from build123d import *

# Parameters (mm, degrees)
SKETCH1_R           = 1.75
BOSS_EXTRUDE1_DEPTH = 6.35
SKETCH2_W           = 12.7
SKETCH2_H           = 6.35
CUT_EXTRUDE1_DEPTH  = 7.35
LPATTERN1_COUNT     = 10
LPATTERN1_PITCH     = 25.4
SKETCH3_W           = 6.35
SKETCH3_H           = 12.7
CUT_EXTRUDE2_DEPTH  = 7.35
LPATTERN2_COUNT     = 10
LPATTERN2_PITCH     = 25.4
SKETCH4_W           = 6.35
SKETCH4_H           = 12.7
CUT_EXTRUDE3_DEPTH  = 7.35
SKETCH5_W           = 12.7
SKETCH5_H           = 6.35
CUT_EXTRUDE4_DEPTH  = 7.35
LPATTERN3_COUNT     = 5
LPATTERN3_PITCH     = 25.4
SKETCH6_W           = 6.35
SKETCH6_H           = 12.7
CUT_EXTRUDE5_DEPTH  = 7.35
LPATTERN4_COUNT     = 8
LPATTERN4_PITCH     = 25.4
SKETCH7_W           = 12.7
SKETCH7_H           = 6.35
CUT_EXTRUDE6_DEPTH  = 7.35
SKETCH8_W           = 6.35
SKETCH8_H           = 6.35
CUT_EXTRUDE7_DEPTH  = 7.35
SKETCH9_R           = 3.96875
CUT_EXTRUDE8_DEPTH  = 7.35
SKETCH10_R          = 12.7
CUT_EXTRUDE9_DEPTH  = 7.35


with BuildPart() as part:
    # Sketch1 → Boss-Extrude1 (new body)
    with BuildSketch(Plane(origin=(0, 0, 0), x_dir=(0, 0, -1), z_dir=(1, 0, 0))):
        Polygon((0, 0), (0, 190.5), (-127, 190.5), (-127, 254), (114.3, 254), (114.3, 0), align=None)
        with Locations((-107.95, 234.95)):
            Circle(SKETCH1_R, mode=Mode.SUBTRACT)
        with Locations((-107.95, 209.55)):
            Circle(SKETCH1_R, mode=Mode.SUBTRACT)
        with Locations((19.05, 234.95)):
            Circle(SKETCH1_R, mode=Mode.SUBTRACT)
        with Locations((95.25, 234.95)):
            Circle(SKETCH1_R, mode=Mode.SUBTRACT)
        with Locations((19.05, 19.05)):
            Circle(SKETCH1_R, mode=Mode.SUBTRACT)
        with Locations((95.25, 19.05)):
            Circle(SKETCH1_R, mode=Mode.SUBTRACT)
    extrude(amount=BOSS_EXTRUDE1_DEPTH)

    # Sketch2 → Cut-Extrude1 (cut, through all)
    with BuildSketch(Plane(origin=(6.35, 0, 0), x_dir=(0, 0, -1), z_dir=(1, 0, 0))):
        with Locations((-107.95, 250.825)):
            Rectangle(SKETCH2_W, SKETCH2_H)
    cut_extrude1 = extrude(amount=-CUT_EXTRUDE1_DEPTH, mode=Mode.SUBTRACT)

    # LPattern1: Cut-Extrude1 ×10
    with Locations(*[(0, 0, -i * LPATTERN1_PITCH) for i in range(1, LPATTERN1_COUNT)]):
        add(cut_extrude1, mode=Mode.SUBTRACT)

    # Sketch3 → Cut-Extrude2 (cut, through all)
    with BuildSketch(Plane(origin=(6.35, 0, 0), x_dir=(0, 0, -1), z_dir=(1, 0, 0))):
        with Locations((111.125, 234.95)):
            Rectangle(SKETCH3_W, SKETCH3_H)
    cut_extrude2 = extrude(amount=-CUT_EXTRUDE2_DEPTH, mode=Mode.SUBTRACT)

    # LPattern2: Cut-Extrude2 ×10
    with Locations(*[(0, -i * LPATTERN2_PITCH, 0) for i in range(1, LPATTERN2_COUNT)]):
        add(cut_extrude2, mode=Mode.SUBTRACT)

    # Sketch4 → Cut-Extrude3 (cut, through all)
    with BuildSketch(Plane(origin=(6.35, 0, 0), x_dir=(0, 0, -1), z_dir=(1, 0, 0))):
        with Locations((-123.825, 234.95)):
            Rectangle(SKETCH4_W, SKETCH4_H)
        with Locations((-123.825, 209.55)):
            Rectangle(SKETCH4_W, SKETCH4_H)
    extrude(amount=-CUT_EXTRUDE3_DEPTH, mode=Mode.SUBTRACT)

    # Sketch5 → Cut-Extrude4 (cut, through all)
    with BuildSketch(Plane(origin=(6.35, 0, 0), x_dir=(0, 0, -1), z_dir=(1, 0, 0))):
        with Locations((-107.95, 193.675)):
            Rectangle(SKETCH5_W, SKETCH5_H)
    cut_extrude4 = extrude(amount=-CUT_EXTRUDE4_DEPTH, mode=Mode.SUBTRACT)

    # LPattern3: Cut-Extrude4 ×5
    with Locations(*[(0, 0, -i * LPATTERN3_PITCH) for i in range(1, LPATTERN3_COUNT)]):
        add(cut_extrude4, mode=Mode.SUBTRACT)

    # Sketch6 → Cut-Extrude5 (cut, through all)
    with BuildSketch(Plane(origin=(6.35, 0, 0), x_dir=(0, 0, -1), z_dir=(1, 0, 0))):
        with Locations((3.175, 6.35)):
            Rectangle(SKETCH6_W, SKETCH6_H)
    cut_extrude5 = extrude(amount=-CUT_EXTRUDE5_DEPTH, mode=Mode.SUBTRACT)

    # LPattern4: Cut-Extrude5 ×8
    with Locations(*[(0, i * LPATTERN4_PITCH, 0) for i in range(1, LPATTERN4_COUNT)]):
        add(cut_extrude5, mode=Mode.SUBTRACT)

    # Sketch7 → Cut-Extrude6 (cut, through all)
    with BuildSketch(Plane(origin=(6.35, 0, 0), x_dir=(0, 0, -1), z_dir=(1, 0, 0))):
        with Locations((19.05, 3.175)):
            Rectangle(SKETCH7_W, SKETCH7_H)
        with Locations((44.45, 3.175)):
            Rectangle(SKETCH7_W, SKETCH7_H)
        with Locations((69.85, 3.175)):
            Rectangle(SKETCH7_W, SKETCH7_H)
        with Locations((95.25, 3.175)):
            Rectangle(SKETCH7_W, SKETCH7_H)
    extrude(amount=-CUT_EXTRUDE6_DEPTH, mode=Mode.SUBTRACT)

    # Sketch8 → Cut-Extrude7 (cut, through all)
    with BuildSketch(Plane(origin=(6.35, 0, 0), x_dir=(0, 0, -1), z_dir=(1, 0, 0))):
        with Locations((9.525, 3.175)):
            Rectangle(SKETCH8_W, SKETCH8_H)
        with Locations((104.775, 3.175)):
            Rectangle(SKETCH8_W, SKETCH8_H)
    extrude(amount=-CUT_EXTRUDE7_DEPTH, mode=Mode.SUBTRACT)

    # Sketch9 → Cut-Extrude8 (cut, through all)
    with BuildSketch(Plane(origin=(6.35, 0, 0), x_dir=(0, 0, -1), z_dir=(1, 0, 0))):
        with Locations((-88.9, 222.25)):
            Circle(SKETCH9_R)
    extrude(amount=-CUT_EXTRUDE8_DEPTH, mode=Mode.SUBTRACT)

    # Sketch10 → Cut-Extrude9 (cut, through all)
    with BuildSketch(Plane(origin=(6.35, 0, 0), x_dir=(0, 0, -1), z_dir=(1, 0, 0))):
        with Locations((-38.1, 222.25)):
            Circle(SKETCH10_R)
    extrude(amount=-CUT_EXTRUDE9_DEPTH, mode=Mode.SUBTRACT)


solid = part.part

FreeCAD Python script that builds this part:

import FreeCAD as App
import Part
import Sketcher
from FreeCAD import Vector
Q = App.Units.Quantity

doc = App.newDocument("Part")
body = doc.addObject("PartDesign::Body", "Body")

# Sketch on YZ plane
sketch1 = body.newObject("Sketcher::SketchObject", "Sketch")
sketch1.AttachmentSupport = (doc.getObject("YZ_Plane"), [""])
sketch1.MapMode = "FlatFace"
sketch1.addGeometry([
    Part.LineSegment(Vector(190.5, 0, 0), Vector(0, 0, 0)),  # 0
    Part.LineSegment(Vector(0, 0, 0), Vector(0, -114.3, 0)),  # 1
    Part.LineSegment(Vector(0, -114.3, 0), Vector(254, -114.3, 0)),  # 2
    Part.LineSegment(Vector(254, -114.3, 0), Vector(254, 127, 0)),  # 3
    Part.LineSegment(Vector(254, 127, 0), Vector(190.5, 127, 0)),  # 4
    Part.LineSegment(Vector(190.5, 127, 0), Vector(190.5, 0, 0)),  # 5
    Part.Circle(Vector(19.1, -95.2, 0), Vector(0, 0, 1), 1.8),  # 6
    Part.Circle(Vector(19.1, -19.1, 0), Vector(0, 0, 1), 1.8),  # 7
    Part.Circle(Vector(234.9, -95.2, 0), Vector(0, 0, 1), 1.8),  # 8
    Part.Circle(Vector(234.9, -19.1, 0), Vector(0, 0, 1), 1.8),  # 9
    Part.Circle(Vector(209.6, 108, 0), Vector(0, 0, 1), 1.8),  # 10
    Part.Circle(Vector(234.9, 108, 0), Vector(0, 0, 1), 1.8),  # 11
], False)
sketch1.addConstraint([
    Sketcher.Constraint("Coincident", 0, 2, 1, 1),
    Sketcher.Constraint("Coincident", 1, 2, 2, 1),
    Sketcher.Constraint("Coincident", 2, 2, 3, 1),
    Sketcher.Constraint("Coincident", 3, 2, 4, 1),
    Sketcher.Constraint("Coincident", 4, 2, 5, 1),
    Sketcher.Constraint("Coincident", 5, 2, 0, 1),
    Sketcher.Constraint("Horizontal", 0),
    Sketcher.Constraint("Vertical", 1),
    Sketcher.Constraint("Horizontal", 2),
    Sketcher.Constraint("Vertical", 3),
    Sketcher.Constraint("Horizontal", 4),
    Sketcher.Constraint("Vertical", 5),
    Sketcher.Constraint("Coincident", 0, 2, -1, 1),
    Sketcher.Constraint("Equal", 6, 7),
    Sketcher.Constraint("Equal", 7, 8),
    Sketcher.Constraint("Equal", 8, 9),
    Sketcher.Constraint("Equal", 9, 10),
    Sketcher.Constraint("Equal", 10, 11),
    Sketcher.Constraint("Horizontal", 6, 3, 8, 3),
    Sketcher.Constraint("Horizontal", 7, 3, 9, 3),
    Sketcher.Constraint("Horizontal", 10, 3, 11, 3),
    Sketcher.Constraint("Vertical", 6, 3, 7, 3),
    Sketcher.Constraint("Vertical", 8, 3, 9, 3),
    Sketcher.Constraint("Vertical", 9, 3, 11, 3),
    Sketcher.Constraint("DistanceX", 2, 1, 2, 2, Q("10 in")),
    Sketcher.Constraint("DistanceY", 5, 2, 5, 1, Q("5 in")),
    Sketcher.Constraint("DistanceX", 0, 2, 0, 1, Q("7.5 in")),
    Sketcher.Constraint("DistanceY", 1, 2, 1, 1, Q("4.5 in")),
    Sketcher.Constraint("DistanceY", 6, 3, 7, 3, Q("3 in")),
    Sketcher.Constraint("DistanceX", 10, 3, 9, 3, Q("1 in")),
    Sketcher.Constraint("DistanceY", 9, 3, 10, 3, Q("5 in")),
    Sketcher.Constraint("DistanceX", 6, 3, 8, 3, Q("8.5 in")),
    Sketcher.Constraint("Diameter", 6, Q("3.5 mm")),
    Sketcher.Constraint("DistanceX", -1, 1, 6, 3, Q("0.75 in")),
    Sketcher.Constraint("DistanceY", 6, 3, -1, 1, Q("3.75 in")),
])
pad1 = body.newObject("PartDesign::Pad", "Pad")
pad1.Profile = sketch1
pad1.Length = Q("0.25 in")

# Sketch on YZ plane
sketch2 = body.newObject("Sketcher::SketchObject", "Sketch001")
sketch2.AttachmentSupport = (doc.getObject("YZ_Plane"), [""])
sketch2.MapMode = "FlatFace"
sketch2.AttachmentOffset = App.Placement(Vector(0, 0, 0.25 * 25.4), App.Rotation())
sketch2.addGeometry([
    Part.LineSegment(Vector(254, 114, 0), Vector(248, 114, 0)),
    Part.LineSegment(Vector(248, 114, 0), Vector(248, 102, 0)),
    Part.LineSegment(Vector(248, 102, 0), Vector(254, 102, 0)),
    Part.LineSegment(Vector(254, 102, 0), Vector(254, 114, 0)),
], False)
sketch2.addConstraint([
    Sketcher.Constraint("Coincident", 0, 2, 1, 1),
    Sketcher.Constraint("Coincident", 1, 2, 2, 1),
    Sketcher.Constraint("Coincident", 2, 2, 3, 1),
    Sketcher.Constraint("Coincident", 3, 2, 0, 1),
    Sketcher.Constraint("Horizontal", 0),
    Sketcher.Constraint("Vertical", 1),
    Sketcher.Constraint("Horizontal", 2),
    Sketcher.Constraint("Vertical", 3),
    Sketcher.Constraint("DistanceY", 1, 2, 1, 1, Q("0.5 in")),
    Sketcher.Constraint("DistanceY", -1, 1, 1, 2, Q("4 in")),
    Sketcher.Constraint("DistanceX", -1, 1, 2, 2, Q("10 in")),
    Sketcher.Constraint("DistanceX", 0, 2, 0, 1, Q("0.25 in")),
])
pocket1 = body.newObject("PartDesign::Pocket", "Pocket")
pocket1.Profile = sketch2
pocket1.Type = "ThroughAll"
doc.recompute()

linearpattern = body.newObject("PartDesign::LinearPattern", "LinearPattern")
linearpattern.Originals = [pocket1]
linearpattern.Direction = (doc.getObject("Z_Axis"), [""])
linearpattern.Mode = "offset"
linearpattern.Offset = Q("1 in")
linearpattern.Occurrences = 10
linearpattern.Reversed = True
body.Tip = linearpattern

# Sketch on YZ plane
sketch3 = body.newObject("Sketcher::SketchObject", "Sketch002")
sketch3.AttachmentSupport = (doc.getObject("YZ_Plane"), [""])
sketch3.MapMode = "FlatFace"
sketch3.AttachmentOffset = App.Placement(Vector(0, 0, 0.25 * 25.4), App.Rotation())
sketch3.addGeometry([
    Part.LineSegment(Vector(241, -108, 0), Vector(229, -108, 0)),
    Part.LineSegment(Vector(229, -108, 0), Vector(229, -114, 0)),
    Part.LineSegment(Vector(229, -114, 0), Vector(241, -114, 0)),
    Part.LineSegment(Vector(241, -114, 0), Vector(241, -108, 0)),
], False)
sketch3.addConstraint([
    Sketcher.Constraint("Coincident", 0, 2, 1, 1),
    Sketcher.Constraint("Coincident", 1, 2, 2, 1),
    Sketcher.Constraint("Coincident", 2, 2, 3, 1),
    Sketcher.Constraint("Coincident", 3, 2, 0, 1),
    Sketcher.Constraint("Horizontal", 0),
    Sketcher.Constraint("Vertical", 1),
    Sketcher.Constraint("Horizontal", 2),
    Sketcher.Constraint("Vertical", 3),
    Sketcher.Constraint("DistanceX", 0, 2, 0, 1, Q("0.5 in")),
    Sketcher.Constraint("DistanceX", -1, 1, 0, 2, Q("9 in")),
    Sketcher.Constraint("DistanceY", 1, 2, 1, 1, Q("0.25 in")),
    Sketcher.Constraint("DistanceY", 1, 2, -1, 1, Q("4.5 in")),
])
pocket2 = body.newObject("PartDesign::Pocket", "Pocket001")
pocket2.Profile = sketch3
pocket2.Type = "ThroughAll"
doc.recompute()

linearpattern2 = body.newObject("PartDesign::LinearPattern", "LinearPattern001")
linearpattern2.Originals = [pocket2]
linearpattern2.Direction = (doc.getObject("Y_Axis"), [""])
linearpattern2.Mode = "offset"
linearpattern2.Offset = Q("1 in")
linearpattern2.Occurrences = 10
linearpattern2.Reversed = True
body.Tip = linearpattern2

# Sketch on YZ plane
sketch4 = body.newObject("Sketcher::SketchObject", "Sketch003")
sketch4.AttachmentSupport = (doc.getObject("YZ_Plane"), [""])
sketch4.MapMode = "FlatFace"
sketch4.AttachmentOffset = App.Placement(Vector(0, 0, 0.25 * 25.4), App.Rotation())
sketch4.addGeometry([
    Part.LineSegment(Vector(241, 127, 0), Vector(229, 127, 0)),  # 0
    Part.LineSegment(Vector(229, 127, 0), Vector(229, 121, 0)),  # 1
    Part.LineSegment(Vector(229, 121, 0), Vector(241, 121, 0)),  # 2
    Part.LineSegment(Vector(241, 121, 0), Vector(241, 127, 0)),  # 3
    Part.LineSegment(Vector(216, 127, 0), Vector(203, 127, 0)),  # 4
    Part.LineSegment(Vector(203, 127, 0), Vector(203, 121, 0)),  # 5
    Part.LineSegment(Vector(203, 121, 0), Vector(216, 121, 0)),  # 6
    Part.LineSegment(Vector(216, 121, 0), Vector(216, 127, 0)),  # 7
], False)
sketch4.addConstraint([
    Sketcher.Constraint("Coincident", 0, 2, 1, 1),
    Sketcher.Constraint("Coincident", 1, 2, 2, 1),
    Sketcher.Constraint("Coincident", 2, 2, 3, 1),
    Sketcher.Constraint("Coincident", 3, 2, 0, 1),
    Sketcher.Constraint("Coincident", 4, 2, 5, 1),
    Sketcher.Constraint("Coincident", 5, 2, 6, 1),
    Sketcher.Constraint("Coincident", 6, 2, 7, 1),
    Sketcher.Constraint("Coincident", 7, 2, 4, 1),
    Sketcher.Constraint("Horizontal", 0),
    Sketcher.Constraint("Vertical", 1),
    Sketcher.Constraint("Horizontal", 2),
    Sketcher.Constraint("Vertical", 3),
    Sketcher.Constraint("Horizontal", 4),
    Sketcher.Constraint("Vertical", 5),
    Sketcher.Constraint("Horizontal", 6),
    Sketcher.Constraint("Vertical", 7),
    Sketcher.Constraint("Horizontal", 3, 2, 4, 2),
    Sketcher.Constraint("Horizontal", 2, 2, 5, 2),
    Sketcher.Constraint("Equal", 2, 4),
    Sketcher.Constraint("DistanceX", 0, 2, 0, 1, Q("0.5 in")),
    Sketcher.Constraint("DistanceX", -1, 1, 0, 2, Q("9 in")),
    Sketcher.Constraint("DistanceY", -1, 1, 0, 2, Q("5 in")),
    Sketcher.Constraint("DistanceX", -1, 1, 4, 2, Q("8 in")),
    Sketcher.Constraint("DistanceY", 1, 2, 1, 1, Q("0.25 in")),
])
pocket3 = body.newObject("PartDesign::Pocket", "Pocket002")
pocket3.Profile = sketch4
pocket3.Type = "ThroughAll"

# Sketch on YZ plane
sketch5 = body.newObject("Sketcher::SketchObject", "Sketch004")
sketch5.AttachmentSupport = (doc.getObject("YZ_Plane"), [""])
sketch5.MapMode = "FlatFace"
sketch5.AttachmentOffset = App.Placement(Vector(0, 0, 0.25 * 25.4), App.Rotation())
sketch5.addGeometry([
    Part.LineSegment(Vector(197, 114, 0), Vector(190, 114, 0)),
    Part.LineSegment(Vector(190, 114, 0), Vector(190, 102, 0)),
    Part.LineSegment(Vector(190, 102, 0), Vector(197, 102, 0)),
    Part.LineSegment(Vector(197, 102, 0), Vector(197, 114, 0)),
], False)
sketch5.addConstraint([
    Sketcher.Constraint("Coincident", 0, 2, 1, 1),
    Sketcher.Constraint("Coincident", 1, 2, 2, 1),
    Sketcher.Constraint("Coincident", 2, 2, 3, 1),
    Sketcher.Constraint("Coincident", 3, 2, 0, 1),
    Sketcher.Constraint("Horizontal", 0),
    Sketcher.Constraint("Vertical", 1),
    Sketcher.Constraint("Horizontal", 2),
    Sketcher.Constraint("Vertical", 3),
    Sketcher.Constraint("DistanceY", 1, 2, 1, 1, Q("0.5 in")),
    Sketcher.Constraint("DistanceY", -1, 1, 1, 2, Q("4 in")),
    Sketcher.Constraint("DistanceX", 0, 2, 0, 1, Q("0.25 in")),
    Sketcher.Constraint("DistanceX", -1, 1, 0, 2, Q("7.5 in")),
])
pocket4 = body.newObject("PartDesign::Pocket", "Pocket003")
pocket4.Profile = sketch5
pocket4.Type = "ThroughAll"
doc.recompute()

linearpattern3 = body.newObject("PartDesign::LinearPattern", "LinearPattern002")
linearpattern3.Originals = [pocket4]
linearpattern3.Direction = (doc.getObject("Z_Axis"), [""])
linearpattern3.Mode = "offset"
linearpattern3.Offset = Q("1 in")
linearpattern3.Occurrences = 5
linearpattern3.Reversed = True
body.Tip = linearpattern3

# Sketch on YZ plane
sketch6 = body.newObject("Sketcher::SketchObject", "Sketch005")
sketch6.AttachmentSupport = (doc.getObject("YZ_Plane"), [""])
sketch6.MapMode = "FlatFace"
sketch6.AttachmentOffset = App.Placement(Vector(0, 0, 0.25 * 25.4), App.Rotation())
sketch6.addGeometry([
    Part.LineSegment(Vector(13, 0, 0), Vector(0, 0, 0)),
    Part.LineSegment(Vector(0, 0, 0), Vector(0, -6, 0)),
    Part.LineSegment(Vector(0, -6, 0), Vector(13, -6, 0)),
    Part.LineSegment(Vector(13, -6, 0), Vector(13, 0, 0)),
], False)
sketch6.addConstraint([
    Sketcher.Constraint("Coincident", 0, 2, 1, 1),
    Sketcher.Constraint("Coincident", 1, 2, 2, 1),
    Sketcher.Constraint("Coincident", 2, 2, 3, 1),
    Sketcher.Constraint("Coincident", 3, 2, 0, 1),
    Sketcher.Constraint("Horizontal", 0),
    Sketcher.Constraint("Vertical", 1),
    Sketcher.Constraint("Horizontal", 2),
    Sketcher.Constraint("Vertical", 3),
    Sketcher.Constraint("Coincident", 0, 2, -1, 1),
    Sketcher.Constraint("DistanceX", 0, 2, 0, 1, Q("0.5 in")),
    Sketcher.Constraint("DistanceY", 1, 2, 1, 1, Q("0.25 in")),
])
pocket5 = body.newObject("PartDesign::Pocket", "Pocket004")
pocket5.Profile = sketch6
pocket5.Type = "ThroughAll"
doc.recompute()

linearpattern4 = body.newObject("PartDesign::LinearPattern", "LinearPattern003")
linearpattern4.Originals = [pocket5]
linearpattern4.Direction = (doc.getObject("Y_Axis"), [""])
linearpattern4.Mode = "offset"
linearpattern4.Offset = Q("1 in")
linearpattern4.Occurrences = 8
body.Tip = linearpattern4

# Sketch on YZ plane
sketch7 = body.newObject("Sketcher::SketchObject", "Sketch006")
sketch7.AttachmentSupport = (doc.getObject("YZ_Plane"), [""])
sketch7.MapMode = "FlatFace"
sketch7.AttachmentOffset = App.Placement(Vector(0, 0, 0.25 * 25.4), App.Rotation())
sketch7.addGeometry([
    Part.LineSegment(Vector(6, -13, 0), Vector(0, -13, 0)),  # 0
    Part.LineSegment(Vector(0, -13, 0), Vector(0, -25, 0)),  # 1
    Part.LineSegment(Vector(0, -25, 0), Vector(6, -25, 0)),  # 2
    Part.LineSegment(Vector(6, -25, 0), Vector(6, -13, 0)),  # 3
    Part.LineSegment(Vector(6, -38, 0), Vector(0, -38, 0)),  # 4
    Part.LineSegment(Vector(0, -38, 0), Vector(0, -51, 0)),  # 5
    Part.LineSegment(Vector(0, -51, 0), Vector(6, -51, 0)),  # 6
    Part.LineSegment(Vector(6, -51, 0), Vector(6, -38, 0)),  # 7
    Part.LineSegment(Vector(6, -64, 0), Vector(0, -64, 0)),  # 8
    Part.LineSegment(Vector(0, -64, 0), Vector(0, -76, 0)),  # 9
    Part.LineSegment(Vector(0, -76, 0), Vector(6, -76, 0)),  # 10
    Part.LineSegment(Vector(6, -76, 0), Vector(6, -64, 0)),  # 11
    Part.LineSegment(Vector(6, -89, 0), Vector(0, -89, 0)),  # 12
    Part.LineSegment(Vector(0, -89, 0), Vector(0, -102, 0)),  # 13
    Part.LineSegment(Vector(0, -102, 0), Vector(6, -102, 0)),  # 14
    Part.LineSegment(Vector(6, -102, 0), Vector(6, -89, 0)),  # 15
], False)
sketch7.addConstraint([
    Sketcher.Constraint("Coincident", 0, 2, 1, 1),
    Sketcher.Constraint("Coincident", 1, 2, 2, 1),
    Sketcher.Constraint("Coincident", 2, 2, 3, 1),
    Sketcher.Constraint("Coincident", 3, 2, 0, 1),
    Sketcher.Constraint("Coincident", 4, 2, 5, 1),
    Sketcher.Constraint("Coincident", 5, 2, 6, 1),
    Sketcher.Constraint("Coincident", 6, 2, 7, 1),
    Sketcher.Constraint("Coincident", 7, 2, 4, 1),
    Sketcher.Constraint("Coincident", 8, 2, 9, 1),
    Sketcher.Constraint("Coincident", 9, 2, 10, 1),
    Sketcher.Constraint("Coincident", 10, 2, 11, 1),
    Sketcher.Constraint("Coincident", 11, 2, 8, 1),
    Sketcher.Constraint("Coincident", 12, 2, 13, 1),
    Sketcher.Constraint("Coincident", 13, 2, 14, 1),
    Sketcher.Constraint("Coincident", 14, 2, 15, 1),
    Sketcher.Constraint("Coincident", 15, 2, 12, 1),
    Sketcher.Constraint("Horizontal", 0),
    Sketcher.Constraint("Vertical", 1),
    Sketcher.Constraint("Horizontal", 2),
    Sketcher.Constraint("Vertical", 3),
    Sketcher.Constraint("Horizontal", 4),
    Sketcher.Constraint("Vertical", 5),
    Sketcher.Constraint("Horizontal", 6),
    Sketcher.Constraint("Vertical", 7),
    Sketcher.Constraint("Horizontal", 8),
    Sketcher.Constraint("Vertical", 9),
    Sketcher.Constraint("Horizontal", 10),
    Sketcher.Constraint("Vertical", 11),
    Sketcher.Constraint("Horizontal", 12),
    Sketcher.Constraint("Vertical", 13),
    Sketcher.Constraint("Horizontal", 14),
    Sketcher.Constraint("Vertical", 15),
    Sketcher.Constraint("PointOnObject", 0, 2, -2),
    Sketcher.Constraint("PointOnObject", 4, 2, -2),
    Sketcher.Constraint("PointOnObject", 8, 2, -2),
    Sketcher.Constraint("PointOnObject", 12, 2, -2),
    Sketcher.Constraint("Vertical", 3, 2, 6, 2),
    Sketcher.Constraint("Vertical", 7, 2, 10, 2),
    Sketcher.Constraint("Vertical", 11, 2, 14, 2),
    Sketcher.Constraint("Equal", 3, 5),
    Sketcher.Constraint("Equal", 7, 9),
    Sketcher.Constraint("Equal", 11, 13),
    Sketcher.Constraint("DistanceY", 1, 2, 1, 1, Q("0.5 in")),
    Sketcher.Constraint("DistanceY", 1, 2, -1, 1, Q("1 in")),
    Sketcher.Constraint("DistanceY", 5, 2, -1, 1, Q("2 in")),
    Sketcher.Constraint("DistanceY", 9, 2, -1, 1, Q("3 in")),
    Sketcher.Constraint("DistanceY", 13, 2, -1, 1, Q("4 in")),
    Sketcher.Constraint("DistanceX", 0, 2, 0, 1, Q("0.25 in")),
])
pocket6 = body.newObject("PartDesign::Pocket", "Pocket005")
pocket6.Profile = sketch7
pocket6.Type = "ThroughAll"

# Sketch on YZ plane
sketch8 = body.newObject("Sketcher::SketchObject", "Sketch007")
sketch8.AttachmentSupport = (doc.getObject("YZ_Plane"), [""])
sketch8.MapMode = "FlatFace"
sketch8.AttachmentOffset = App.Placement(Vector(0, 0, 0.25 * 25.4), App.Rotation())
sketch8.addGeometry([
    Part.LineSegment(Vector(6, -6, 0), Vector(0, -6, 0)),  # 0
    Part.LineSegment(Vector(0, -6, 0), Vector(0, -13, 0)),  # 1
    Part.LineSegment(Vector(0, -13, 0), Vector(6, -13, 0)),  # 2
    Part.LineSegment(Vector(6, -13, 0), Vector(6, -6, 0)),  # 3
    Part.LineSegment(Vector(6, -102, 0), Vector(0, -102, 0)),  # 4
    Part.LineSegment(Vector(0, -102, 0), Vector(0, -108, 0)),  # 5
    Part.LineSegment(Vector(0, -108, 0), Vector(6, -108, 0)),  # 6
    Part.LineSegment(Vector(6, -108, 0), Vector(6, -102, 0)),  # 7
], False)
sketch8.addConstraint([
    Sketcher.Constraint("Coincident", 0, 2, 1, 1),
    Sketcher.Constraint("Coincident", 1, 2, 2, 1),
    Sketcher.Constraint("Coincident", 2, 2, 3, 1),
    Sketcher.Constraint("Coincident", 3, 2, 0, 1),
    Sketcher.Constraint("Coincident", 4, 2, 5, 1),
    Sketcher.Constraint("Coincident", 5, 2, 6, 1),
    Sketcher.Constraint("Coincident", 6, 2, 7, 1),
    Sketcher.Constraint("Coincident", 7, 2, 4, 1),
    Sketcher.Constraint("Horizontal", 0),
    Sketcher.Constraint("Vertical", 1),
    Sketcher.Constraint("Horizontal", 2),
    Sketcher.Constraint("Vertical", 3),
    Sketcher.Constraint("Horizontal", 4),
    Sketcher.Constraint("Vertical", 5),
    Sketcher.Constraint("Horizontal", 6),
    Sketcher.Constraint("Vertical", 7),
    Sketcher.Constraint("PointOnObject", 0, 2, -2),
    Sketcher.Constraint("PointOnObject", 4, 2, -2),
    Sketcher.Constraint("Vertical", 3, 2, 6, 2),
    Sketcher.Constraint("Equal", 6, 1),
    Sketcher.Constraint("Equal", 3, 5),
    Sketcher.Constraint("DistanceY", 4, 2, -1, 1, Q("4 in")),
    Sketcher.Constraint("DistanceY", 5, 2, 0, 2, Q("4 in")),
    Sketcher.Constraint("DistanceX", 0, 2, 0, 1, Q("0.25 in")),
])
pocket7 = body.newObject("PartDesign::Pocket", "Pocket006")
pocket7.Profile = sketch8
pocket7.Type = "ThroughAll"

# Sketch on YZ plane
sketch9 = body.newObject("Sketcher::SketchObject", "Sketch008")
sketch9.AttachmentSupport = (doc.getObject("YZ_Plane"), [""])
sketch9.MapMode = "FlatFace"
sketch9.AttachmentOffset = App.Placement(Vector(0, 0, 0.25 * 25.4), App.Rotation())
sketch9.addGeometry(Part.Circle(Vector(222.2, 88.9, 0), Vector(0, 0, 1), 4), False)
sketch9.addConstraint([
    Sketcher.Constraint("Diameter", 0, Q("0.3125 in")),
    Sketcher.Constraint("DistanceY", -1, 1, 0, 3, Q("3.5 in")),
    Sketcher.Constraint("DistanceX", -1, 1, 0, 3, Q("8.75 in")),
])
pocket8 = body.newObject("PartDesign::Pocket", "Pocket007")
pocket8.Profile = sketch9
pocket8.Type = "ThroughAll"

# Sketch on YZ plane
sketch10 = body.newObject("Sketcher::SketchObject", "Sketch009")
sketch10.AttachmentSupport = (doc.getObject("YZ_Plane"), [""])
sketch10.MapMode = "FlatFace"
sketch10.AttachmentOffset = App.Placement(Vector(0, 0, 0.25 * 25.4), App.Rotation())
sketch10.addGeometry(Part.Circle(Vector(222, 38, 0), Vector(0, 0, 1), 13), False)
sketch10.addConstraint([
    Sketcher.Constraint("Diameter", 0, Q("1 in")),
    Sketcher.Constraint("DistanceY", -1, 1, 0, 3, Q("1.5 in")),
    Sketcher.Constraint("DistanceX", -1, 1, 0, 3, Q("8.75 in")),
])
pocket9 = body.newObject("PartDesign::Pocket", "Pocket008")
pocket9.Profile = sketch10
pocket9.Type = "ThroughAll"

doc.recompute()
